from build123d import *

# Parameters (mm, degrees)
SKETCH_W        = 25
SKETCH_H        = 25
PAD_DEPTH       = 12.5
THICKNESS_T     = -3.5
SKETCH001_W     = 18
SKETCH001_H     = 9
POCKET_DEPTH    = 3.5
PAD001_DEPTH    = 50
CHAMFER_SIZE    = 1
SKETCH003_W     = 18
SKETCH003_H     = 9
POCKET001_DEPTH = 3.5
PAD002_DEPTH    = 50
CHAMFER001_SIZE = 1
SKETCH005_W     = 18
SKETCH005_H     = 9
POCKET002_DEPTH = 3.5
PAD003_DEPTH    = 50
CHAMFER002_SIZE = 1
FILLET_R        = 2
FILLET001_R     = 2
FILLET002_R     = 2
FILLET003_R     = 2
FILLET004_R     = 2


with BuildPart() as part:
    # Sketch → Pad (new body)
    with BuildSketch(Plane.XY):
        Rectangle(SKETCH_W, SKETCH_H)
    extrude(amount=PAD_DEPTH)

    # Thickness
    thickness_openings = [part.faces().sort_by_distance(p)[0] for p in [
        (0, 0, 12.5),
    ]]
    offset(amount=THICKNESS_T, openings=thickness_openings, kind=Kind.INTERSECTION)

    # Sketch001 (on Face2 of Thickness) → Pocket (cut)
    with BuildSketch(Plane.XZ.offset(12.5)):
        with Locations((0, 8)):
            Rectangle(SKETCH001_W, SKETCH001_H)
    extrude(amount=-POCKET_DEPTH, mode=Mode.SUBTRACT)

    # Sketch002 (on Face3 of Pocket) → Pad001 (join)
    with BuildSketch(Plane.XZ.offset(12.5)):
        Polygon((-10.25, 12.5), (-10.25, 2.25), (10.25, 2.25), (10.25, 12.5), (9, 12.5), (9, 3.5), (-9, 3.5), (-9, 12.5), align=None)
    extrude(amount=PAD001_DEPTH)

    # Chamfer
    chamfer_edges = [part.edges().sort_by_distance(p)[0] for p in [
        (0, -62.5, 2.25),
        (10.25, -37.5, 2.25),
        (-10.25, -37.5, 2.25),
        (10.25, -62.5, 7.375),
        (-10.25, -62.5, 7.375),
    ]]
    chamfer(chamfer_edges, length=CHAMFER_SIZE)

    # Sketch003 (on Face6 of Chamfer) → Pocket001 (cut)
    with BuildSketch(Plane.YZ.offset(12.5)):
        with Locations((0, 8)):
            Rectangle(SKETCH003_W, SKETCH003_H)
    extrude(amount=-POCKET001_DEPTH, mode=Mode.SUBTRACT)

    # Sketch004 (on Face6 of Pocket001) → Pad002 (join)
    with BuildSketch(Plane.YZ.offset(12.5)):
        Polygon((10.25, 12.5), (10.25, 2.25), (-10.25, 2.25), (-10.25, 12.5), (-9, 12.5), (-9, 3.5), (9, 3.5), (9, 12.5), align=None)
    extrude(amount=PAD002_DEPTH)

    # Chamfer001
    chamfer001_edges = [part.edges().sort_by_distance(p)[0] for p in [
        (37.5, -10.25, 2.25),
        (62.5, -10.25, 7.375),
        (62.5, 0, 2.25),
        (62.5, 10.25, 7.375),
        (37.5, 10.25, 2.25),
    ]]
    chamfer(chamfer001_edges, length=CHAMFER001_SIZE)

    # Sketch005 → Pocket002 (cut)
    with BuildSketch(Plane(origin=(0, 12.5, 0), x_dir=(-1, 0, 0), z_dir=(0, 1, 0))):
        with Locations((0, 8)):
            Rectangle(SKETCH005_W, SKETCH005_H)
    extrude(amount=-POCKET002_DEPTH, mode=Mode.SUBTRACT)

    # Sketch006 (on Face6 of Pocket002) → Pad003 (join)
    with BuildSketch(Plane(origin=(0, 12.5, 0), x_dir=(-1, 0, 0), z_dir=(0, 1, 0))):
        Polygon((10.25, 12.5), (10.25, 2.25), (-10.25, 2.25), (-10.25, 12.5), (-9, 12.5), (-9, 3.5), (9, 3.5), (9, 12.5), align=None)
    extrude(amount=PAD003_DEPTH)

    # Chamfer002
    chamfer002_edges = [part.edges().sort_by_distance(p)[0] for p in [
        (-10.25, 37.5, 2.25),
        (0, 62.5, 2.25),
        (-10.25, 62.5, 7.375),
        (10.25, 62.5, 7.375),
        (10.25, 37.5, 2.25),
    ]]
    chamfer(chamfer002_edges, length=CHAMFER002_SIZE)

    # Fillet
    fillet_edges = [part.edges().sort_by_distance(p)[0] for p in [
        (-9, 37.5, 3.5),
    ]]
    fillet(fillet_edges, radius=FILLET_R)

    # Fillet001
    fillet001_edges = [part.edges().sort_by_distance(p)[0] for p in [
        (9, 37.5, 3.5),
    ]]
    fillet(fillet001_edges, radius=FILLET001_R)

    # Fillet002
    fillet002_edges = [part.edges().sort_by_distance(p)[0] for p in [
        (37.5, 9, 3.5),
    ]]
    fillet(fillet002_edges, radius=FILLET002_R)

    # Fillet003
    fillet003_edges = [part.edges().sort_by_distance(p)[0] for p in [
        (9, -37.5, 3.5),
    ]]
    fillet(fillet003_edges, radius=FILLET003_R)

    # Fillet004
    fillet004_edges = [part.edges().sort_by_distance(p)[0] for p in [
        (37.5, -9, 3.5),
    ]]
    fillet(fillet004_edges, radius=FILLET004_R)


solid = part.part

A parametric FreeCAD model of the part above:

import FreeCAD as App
import Part
import Sketcher
from FreeCAD import Vector


def edges_at(feature, points):
    """Names of the edges that pass closest to the given points."""
    edges = feature.Shape.Edges
    near = lambda p: min(range(len(edges)), key=lambda i: edges[i].distToShape(Part.Vertex(*p))[0])
    return sorted({f"Edge{near(p) + 1}" for p in points})


def faces_at(feature, points):
    """Names of the faces that lie closest to the given points."""
    faces = feature.Shape.Faces
    near = lambda p: min(range(len(faces)), key=lambda i: faces[i].distToShape(Part.Vertex(*p))[0])
    return sorted({f"Face{near(p) + 1}" for p in points})

doc = App.newDocument("Part")
body = doc.addObject("PartDesign::Body", "Body")

# Sketch on XY plane
sketch1 = body.newObject("Sketcher::SketchObject", "Sketch")
sketch1.AttachmentSupport = (doc.getObject("XY_Plane"), [""])
sketch1.MapMode = "FlatFace"
sketch1.addGeometry([
    Part.LineSegment(Vector(-12, 12, 0), Vector(-12, -12, 0)),
    Part.LineSegment(Vector(-12, -12, 0), Vector(12, -12, 0)),
    Part.LineSegment(Vector(12, -12, 0), Vector(12, 12, 0)),
    Part.LineSegment(Vector(12, 12, 0), Vector(-12, 12, 0)),
], False)
sketch1.addConstraint([
    Sketcher.Constraint("Coincident", 0, 2, 1, 1),
    Sketcher.Constraint("Coincident", 1, 2, 2, 1),
    Sketcher.Constraint("Coincident", 2, 2, 3, 1),
    Sketcher.Constraint("Coincident", 3, 2, 0, 1),
    Sketcher.Constraint("Vertical", 0),
    Sketcher.Constraint("Horizontal", 1),
    Sketcher.Constraint("Vertical", 2),
    Sketcher.Constraint("Horizontal", 3),
    Sketcher.Constraint("Symmetric", 0, 2, 2, 2, -1, 1),
    Sketcher.Constraint("Equal", 3, 0),
    Sketcher.Constraint("DistanceX", 1, 1, 1, 2, 25.0),
])
pad1 = body.newObject("PartDesign::Pad", "Pad")
pad1.Profile = sketch1
pad1.Length = 12.5
doc.recompute()

thickness = body.newObject("PartDesign::Thickness", "Thickness")
thickness.Base = (pad1, faces_at(pad1, [(0, 0, 12.5)]))
thickness.Value = 3.5
thickness.Reversed = True
thickness.Join = "Intersection"

# Sketch on XZ plane
sketch2 = body.newObject("Sketcher::SketchObject", "Sketch001")
sketch2.AttachmentSupport = (doc.getObject("XZ_Plane"), [""])
sketch2.MapMode = "FlatFace"
sketch2.AttachmentOffset = App.Placement(Vector(0, 0, 12.5), App.Rotation())
sketch2.addGeometry([
    Part.LineSegment(Vector(-9, 12, 0), Vector(-9, 4, 0)),
    Part.LineSegment(Vector(-9, 4, 0), Vector(9, 4, 0)),
    Part.LineSegment(Vector(9, 4, 0), Vector(9, 12, 0)),
    Part.LineSegment(Vector(9, 12, 0), Vector(-9, 12, 0)),
], False)
sketch2.addConstraint([
    Sketcher.Constraint("Coincident", 0, 2, 1, 1),
    Sketcher.Constraint("Coincident", 1, 2, 2, 1),
    Sketcher.Constraint("Coincident", 2, 2, 3, 1),
    Sketcher.Constraint("Coincident", 3, 2, 0, 1),
    Sketcher.Constraint("Vertical", 0),
    Sketcher.Constraint("Horizontal", 1),
    Sketcher.Constraint("Vertical", 2),
    Sketcher.Constraint("Horizontal", 3),
    Sketcher.Constraint("DistanceX", 1, 1, 1, 2, 18.0),
    Sketcher.Constraint("DistanceY", 0, 2, 0, 1, 9.0),
    Sketcher.Constraint("DistanceX", 0, 2, -1, 1, 9.0),
    Sketcher.Constraint("DistanceY", -1, 1, 0, 2, 3.5),
])
pocket1 = body.newObject("PartDesign::Pocket", "Pocket")
pocket1.Profile = sketch2
pocket1.Length = 3.5

# Sketch on XZ plane
sketch3 = body.newObject("Sketcher::SketchObject", "Sketch002")
sketch3.AttachmentSupport = (doc.getObject("XZ_Plane"), [""])
sketch3.MapMode = "FlatFace"
sketch3.AttachmentOffset = App.Placement(Vector(0, 0, 12.5), App.Rotation())
sketch3.addGeometry([
    Part.LineSegment(Vector(-10.2, 12.5, 0), Vector(-10.2, 2.2, 0)),  # 0
    Part.LineSegment(Vector(-10.2, 2.2, 0), Vector(10.2, 2.2, 0)),  # 1
    Part.LineSegment(Vector(10.2, 2.2, 0), Vector(10.2, 12.5, 0)),  # 2
    Part.LineSegment(Vector(10.2, 12.5, 0), Vector(9, 12.5, 0)),  # 3
    Part.LineSegment(Vector(9, 12.5, 0), Vector(9, 3.5, 0)),  # 4
    Part.LineSegment(Vector(9, 3.5, 0), Vector(-9, 3.5, 0)),  # 5
    Part.LineSegment(Vector(-9, 3.5, 0), Vector(-9, 12.5, 0)),  # 6
    Part.LineSegment(Vector(-9, 12.5, 0), Vector(-10.2, 12.5, 0)),  # 7
], False)
sketch3.addConstraint([
    Sketcher.Constraint("Coincident", 0, 2, 1, 1),
    Sketcher.Constraint("Coincident", 1, 2, 2, 1),
    Sketcher.Constraint("Coincident", 2, 2, 3, 1),
    Sketcher.Constraint("Coincident", 3, 2, 4, 1),
    Sketcher.Constraint("Coincident", 4, 2, 5, 1),
    Sketcher.Constraint("Coincident", 5, 2, 6, 1),
    Sketcher.Constraint("Coincident", 6, 2, 7, 1),
    Sketcher.Constraint("Coincident", 7, 2, 0, 1),
    Sketcher.Constraint("Vertical", 0),
    Sketcher.Constraint("Horizontal", 1),
    Sketcher.Constraint("Vertical", 2),
    Sketcher.Constraint("Horizontal", 3),
    Sketcher.Constraint("Vertical", 4),
    Sketcher.Constraint("Horizontal", 5),
    Sketcher.Constraint("Vertical", 6),
    Sketcher.Constraint("Horizontal", 7),
    Sketcher.Constraint("Symmetric", 3, 2, 6, 2, -2),
    Sketcher.Constraint("Equal", 3, 7),
    Sketcher.Constraint("DistanceX", 5, 2, 5, 1, 18.0),
    Sketcher.Constraint("DistanceY", 4, 2, 4, 1, 9.0),
    Sketcher.Constraint("DistanceX", 1, 1, 1, 2, 20.5),
    Sketcher.Constraint("DistanceY", 0, 2, 0, 1, 10.25),
    Sketcher.Constraint("DistanceY", -1, 1, 2, 2, 12.5),
])
pad2 = body.newObject("PartDesign::Pad", "Pad001")
pad2.Profile = sketch3
pad2.Length = 50
doc.recompute()

chamfer = body.newObject("PartDesign::Chamfer", "Chamfer")
chamfer.Base = (pad2, edges_at(pad2, [
    (0, -62.5, 2.25),
    (10.25, -37.5, 2.25),
    (-10.25, -37.5, 2.25),
    (10.25, -62.5, 7.375),
    (-10.25, -62.5, 7.375),
]))
chamfer.Size = 1

# Sketch on YZ plane
sketch4 = body.newObject("Sketcher::SketchObject", "Sketch003")
sketch4.AttachmentSupport = (doc.getObject("YZ_Plane"), [""])
sketch4.MapMode = "FlatFace"
sketch4.AttachmentOffset = App.Placement(Vector(0, 0, 12.5), App.Rotation())
sketch4.addGeometry([
    Part.LineSegment(Vector(-9, 12, 0), Vector(-9, 4, 0)),
    Part.LineSegment(Vector(-9, 4, 0), Vector(9, 4, 0)),
    Part.LineSegment(Vector(9, 4, 0), Vector(9, 12, 0)),
    Part.LineSegment(Vector(9, 12, 0), Vector(-9, 12, 0)),
], False)
sketch4.addConstraint([
    Sketcher.Constraint("Coincident", 0, 2, 1, 1),
    Sketcher.Constraint("Coincident", 1, 2, 2, 1),
    Sketcher.Constraint("Coincident", 2, 2, 3, 1),
    Sketcher.Constraint("Coincident", 3, 2, 0, 1),
    Sketcher.Constraint("Vertical", 0),
    Sketcher.Constraint("Horizontal", 1),
    Sketcher.Constraint("Vertical", 2),
    Sketcher.Constraint("Horizontal", 3),
    Sketcher.Constraint("DistanceX", 1, 1, 1, 2, 18.0),
    Sketcher.Constraint("DistanceY", 0, 2, 0, 1, 9.0),
    Sketcher.Constraint("DistanceX", 0, 2, -1, 1, 9.0),
    Sketcher.Constraint("DistanceY", -1, 1, 0, 2, 3.5),
])
pocket2 = body.newObject("PartDesign::Pocket", "Pocket001")
pocket2.Profile = sketch4
pocket2.Length = 3.5

# Sketch on YZ plane
sketch5 = body.newObject("Sketcher::SketchObject", "Sketch004")
sketch5.AttachmentSupport = (doc.getObject("YZ_Plane"), [""])
sketch5.MapMode = "FlatFace"
sketch5.AttachmentOffset = App.Placement(Vector(0, 0, 12.5), App.Rotation())
sketch5.addGeometry([
    Part.LineSegment(Vector(10.2, 2.2, 0), Vector(10.2, 12.5, 0)),  # 0
    Part.LineSegment(Vector(10.2, 12.5, 0), Vector(9, 12.5, 0)),  # 1
    Part.LineSegment(Vector(9, 12.5, 0), Vector(9, 3.5, 0)),  # 2
    Part.LineSegment(Vector(9, 3.5, 0), Vector(-9, 3.5, 0)),  # 3
    Part.LineSegment(Vector(-9, 3.5, 0), Vector(-9, 12.5, 0)),  # 4
    Part.LineSegment(Vector(-9, 12.5, 0), Vector(-10.2, 12.5, 0)),  # 5
    Part.LineSegment(Vector(-10.2, 12.5, 0), Vector(-10.2, 2.2, 0)),  # 6
    Part.LineSegment(Vector(-10.2, 2.2, 0), Vector(10.2, 2.2, 0)),  # 7
], False)
sketch5.addConstraint([
    Sketcher.Constraint("Coincident", 0, 2, 1, 1),
    Sketcher.Constraint("Coincident", 1, 2, 2, 1),
    Sketcher.Constraint("Coincident", 2, 2, 3, 1),
    Sketcher.Constraint("Coincident", 3, 2, 4, 1),
    Sketcher.Constraint("Coincident", 4, 2, 5, 1),
    Sketcher.Constraint("Coincident", 5, 2, 6, 1),
    Sketcher.Constraint("Coincident", 6, 2, 7, 1),
    Sketcher.Constraint("Coincident", 7, 2, 0, 1),
    Sketcher.Constraint("Vertical", 0),
    Sketcher.Constraint("Horizontal", 1),
    Sketcher.Constraint("Vertical", 2),
    Sketcher.Constraint("Horizontal", 3),
    Sketcher.Constraint("Vertical", 4),
    Sketcher.Constraint("Horizontal", 5),
    Sketcher.Constraint("Vertical", 6),
    Sketcher.Constraint("Horizontal", 7),
    Sketcher.Constraint("Symmetric", 1, 2, 4, 2, -2),
    Sketcher.Constraint("Equal", 1, 5),
    Sketcher.Constraint("DistanceX", 3, 2, 3, 1, 18.0),
    Sketcher.Constraint("DistanceY", 2, 2, 2, 1, 9.0),
    Sketcher.Constraint("DistanceX", 7, 1, 7, 2, 20.5),
    Sketcher.Constraint("DistanceY", 0, 1, 0, 2, 10.25),
    Sketcher.Constraint("DistanceY", -1, 1, 0, 2, 12.5),
])
pad3 = body.newObject("PartDesign::Pad", "Pad002")
pad3.Profile = sketch5
pad3.Length = 50
doc.recompute()

chamfer2 = body.newObject("PartDesign::Chamfer", "Chamfer001")
chamfer2.Base = (pad3, edges_at(pad3, [
    (37.5, -10.25, 2.25),
    (62.5, -10.25, 7.375),
    (62.5, 0, 2.25),
    (62.5, 10.25, 7.375),
    (37.5, 10.25, 2.25),
]))
chamfer2.Size = 1

# Sketch on XZ plane
sketch6 = body.newObject("Sketcher::SketchObject", "Sketch005")
sketch6.AttachmentSupport = (doc.getObject("XZ_Plane"), [""])
sketch6.MapMode = "FlatFace"
sketch6.AttachmentOffset = App.Placement(Vector(0, 0, -12.5), App.Rotation())
sketch6.addGeometry([
    Part.LineSegment(Vector(9, 12, 0), Vector(9, 4, 0)),
    Part.LineSegment(Vector(9, 4, 0), Vector(-9, 4, 0)),
    Part.LineSegment(Vector(-9, 4, 0), Vector(-9, 12, 0)),
    Part.LineSegment(Vector(-9, 12, 0), Vector(9, 12, 0)),
], False)
sketch6.addConstraint([
    Sketcher.Constraint("Coincident", 0, 2, 1, 1),
    Sketcher.Constraint("Coincident", 1, 2, 2, 1),
    Sketcher.Constraint("Coincident", 2, 2, 3, 1),
    Sketcher.Constraint("Coincident", 3, 2, 0, 1),
    Sketcher.Constraint("Vertical", 0),
    Sketcher.Constraint("Horizontal", 1),
    Sketcher.Constraint("Vertical", 2),
    Sketcher.Constraint("Horizontal", 3),
    Sketcher.Constraint("DistanceX", 1, 2, 1, 1, 18.0),
    Sketcher.Constraint("DistanceY", 0, 2, 0, 1, 9.0),
    Sketcher.Constraint("DistanceX", -1, 1, 0, 2, 9.0),
    Sketcher.Constraint("DistanceY", -1, 1, 0, 2, 3.5),
])
pocket3 = body.newObject("PartDesign::Pocket", "Pocket002")
pocket3.Profile = sketch6
pocket3.Length = 3.5
pocket3.Reversed = True

# Sketch on XZ plane
sketch7 = body.newObject("Sketcher::SketchObject", "Sketch006")
sketch7.AttachmentSupport = (doc.getObject("XZ_Plane"), [""])
sketch7.MapMode = "FlatFace"
sketch7.AttachmentOffset = App.Placement(Vector(0, 0, -12.5), App.Rotation())
sketch7.addGeometry([
    Part.LineSegment(Vector(-10.2, 2.2, 0), Vector(-10.2, 12.5, 0)),  # 0
    Part.LineSegment(Vector(-10.2, 12.5, 0), Vector(-9, 12.5, 0)),  # 1
    Part.LineSegment(Vector(-9, 12.5, 0), Vector(-9, 3.5, 0)),  # 2
    Part.LineSegment(Vector(-9, 3.5, 0), Vector(9, 3.5, 0)),  # 3
    Part.LineSegment(Vector(9, 3.5, 0), Vector(9, 12.5, 0)),  # 4
    Part.LineSegment(Vector(9, 12.5, 0), Vector(10.2, 12.5, 0)),  # 5
    Part.LineSegment(Vector(10.2, 12.5, 0), Vector(10.2, 2.2, 0)),  # 6
    Part.LineSegment(Vector(10.2, 2.2, 0), Vector(-10.2, 2.2, 0)),  # 7
], False)
sketch7.addConstraint([
    Sketcher.Constraint("Coincident", 0, 2, 1, 1),
    Sketcher.Constraint("Coincident", 1, 2, 2, 1),
    Sketcher.Constraint("Coincident", 2, 2, 3, 1),
    Sketcher.Constraint("Coincident", 3, 2, 4, 1),
    Sketcher.Constraint("Coincident", 4, 2, 5, 1),
    Sketcher.Constraint("Coincident", 5, 2, 6, 1),
    Sketcher.Constraint("Coincident", 6, 2, 7, 1),
    Sketcher.Constraint("Coincident", 7, 2, 0, 1),
    Sketcher.Constraint("Vertical", 0),
    Sketcher.Constraint("Horizontal", 1),
    Sketcher.Constraint("Vertical", 2),
    Sketcher.Constraint("Horizontal", 3),
    Sketcher.Constraint("Vertical", 4),
    Sketcher.Constraint("Horizontal", 5),
    Sketcher.Constraint("Vertical", 6),
    Sketcher.Constraint("Horizontal", 7),
    Sketcher.Constraint("Symmetric", 1, 2, 4, 2, -2),
    Sketcher.Constraint("Equal", 1, 5),
    Sketcher.Constraint("DistanceX", 3, 1, 3, 2, 18.0),
    Sketcher.Constraint("DistanceY", 2, 2, 2, 1, 9.0),
    Sketcher.Constraint("DistanceX", 7, 2, 7, 1, 20.5),
    Sketcher.Constraint("DistanceY", 0, 1, 0, 2, 10.25),
    Sketcher.Constraint("DistanceY", -1, 1, 0, 2, 12.5),
])
pad4 = body.newObject("PartDesign::Pad", "Pad003")
pad4.Profile = sketch7
pad4.Length = 50
pad4.Reversed = True
doc.recompute()

chamfer3 = body.newObject("PartDesign::Chamfer", "Chamfer002")
chamfer3.Base = (pad4, edges_at(pad4, [
    (-10.25, 37.5, 2.25),
    (0, 62.5, 2.25),
    (-10.25, 62.5, 7.375),
    (10.25, 62.5, 7.375),
    (10.25, 37.5, 2.25),
]))
chamfer3.Size = 1
doc.recompute()

fillet = body.newObject("PartDesign::Fillet", "Fillet")
fillet.Base = (chamfer3, edges_at(chamfer3, [(-9, 0, 3.5)]))
fillet.Radius = 2
doc.recompute()

fillet2 = body.newObject("PartDesign::Fillet", "Fillet001")
fillet2.Base = (fillet, edges_at(fillet, [(9, 35.75, 3.5)]))
fillet2.Radius = 2
doc.recompute()

fillet3 = body.newObject("PartDesign::Fillet", "Fillet002")
fillet3.Base = (fillet2, edges_at(fillet2, [(34.75, 9, 3.5)]))
fillet3.Radius = 2
doc.recompute()

fillet4 = body.newObject("PartDesign::Fillet", "Fillet003")
fillet4.Base = (fillet3, edges_at(fillet3, [(9, -35.75, 3.5)]))
fillet4.Radius = 2
doc.recompute()

fillet5 = body.newObject("PartDesign::Fillet", "Fillet004")
fillet5.Base = (fillet4, edges_at(fillet4, [(34.75, -9, 3.5)]))
fillet5.Radius = 2

doc.recompute()
